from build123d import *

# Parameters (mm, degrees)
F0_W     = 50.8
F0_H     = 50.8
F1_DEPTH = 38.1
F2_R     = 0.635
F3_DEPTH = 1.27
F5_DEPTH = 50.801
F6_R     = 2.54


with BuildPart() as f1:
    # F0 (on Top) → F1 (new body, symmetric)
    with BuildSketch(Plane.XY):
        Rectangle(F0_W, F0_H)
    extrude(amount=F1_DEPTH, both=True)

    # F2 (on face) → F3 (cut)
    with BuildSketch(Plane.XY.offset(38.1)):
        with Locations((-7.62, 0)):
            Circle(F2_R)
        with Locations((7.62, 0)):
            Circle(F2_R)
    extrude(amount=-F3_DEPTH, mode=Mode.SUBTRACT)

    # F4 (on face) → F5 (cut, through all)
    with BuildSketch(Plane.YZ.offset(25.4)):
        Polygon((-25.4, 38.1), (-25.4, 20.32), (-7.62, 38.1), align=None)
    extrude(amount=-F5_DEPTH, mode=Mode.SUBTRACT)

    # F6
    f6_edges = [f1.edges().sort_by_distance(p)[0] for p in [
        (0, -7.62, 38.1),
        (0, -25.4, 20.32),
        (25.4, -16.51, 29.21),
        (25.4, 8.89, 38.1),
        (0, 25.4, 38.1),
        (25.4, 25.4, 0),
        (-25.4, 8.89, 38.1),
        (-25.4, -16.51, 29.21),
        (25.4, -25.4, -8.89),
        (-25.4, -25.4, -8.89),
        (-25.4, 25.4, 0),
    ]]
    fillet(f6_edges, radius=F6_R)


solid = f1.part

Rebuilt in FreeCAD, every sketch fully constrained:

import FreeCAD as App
import Part
import Sketcher
Q = App.Units.Quantity


def edges_at(feature, points):
    """Names of the edges that pass closest to the given points."""
    edges = feature.Shape.Edges
    near = lambda p: min(range(len(edges)), key=lambda i: edges[i].distToShape(Part.Vertex(*p))[0])
    return sorted({f"Edge{near(p) + 1}" for p in points})


def add_polygon(sketch, points):
    """Adds a closed chain of lines whose ends are joined by coincident constraints."""
    first, n = sketch.GeometryCount, len(points)
    for a, b in zip(points, points[1:] + points[:1]):
        sketch.addGeometry(Part.LineSegment(App.Vector(*a, 0), App.Vector(*b, 0)), False)
    for i in range(n):
        sketch.addConstraint(Sketcher.Constraint("Coincident", first + i, 2, first + (i + 1) % n, 1))

doc = App.newDocument("Part")
body = doc.addObject("PartDesign::Body", "Body")

sketch1 = body.newObject("Sketcher::SketchObject", "Sketch")
sketch1.AttachmentSupport = (doc.getObject("XY_Plane"), [""])
sketch1.MapMode = "FlatFace"
add_polygon(sketch1, [(-25, 25), (-25, -25), (25, -25), (25, 25)])
sketch1.addConstraint(Sketcher.Constraint("Vertical", 0))
sketch1.addConstraint(Sketcher.Constraint("Horizontal", 1))
sketch1.addConstraint(Sketcher.Constraint("Vertical", 2))
sketch1.addConstraint(Sketcher.Constraint("Horizontal", 3))
sketch1.addConstraint(Sketcher.Constraint("Symmetric", 0, 2, 2, 2, -1, 1))
sketch1.addConstraint(Sketcher.Constraint("Equal", 3, 0))
sketch1.addConstraint(Sketcher.Constraint("DistanceX", 1, 1, 1, 2, Q("2 in")))
pad1 = body.newObject("PartDesign::Pad", "Pad")
pad1.Profile = sketch1
pad1.Length = Q("3 in")
pad1.Midplane = True

sketch2 = body.newObject("Sketcher::SketchObject", "Sketch001")
sketch2.AttachmentSupport = (doc.getObject("XY_Plane"), [""])
sketch2.MapMode = "FlatFace"
sketch2.AttachmentOffset = App.Placement(App.Vector(0, 0, 1.5 * 25.4), App.Rotation())
sketch2.addGeometry(Part.Circle(App.Vector(-7.6, 0, 0), App.Vector(0, 0, 1), 0.6), False)
sketch2.addGeometry(Part.Circle(App.Vector(7.6, 0, 0), App.Vector(0, 0, 1), 0.6), False)
sketch2.addConstraint(Sketcher.Constraint("Equal", 0, 1))
sketch2.addConstraint(Sketcher.Constraint("Symmetric", 0, 3, 1, 3, -1, 1))
sketch2.addConstraint(Sketcher.Constraint("PointOnObject", 0, 3, -1))
sketch2.addConstraint(Sketcher.Constraint("Diameter", 0, Q("0.05 in")))
sketch2.addConstraint(Sketcher.Constraint("DistanceX", 0, 3, -1, 1, Q("0.3 in")))
pocket1 = body.newObject("PartDesign::Pocket", "Pocket")
pocket1.Profile = sketch2
pocket1.Length = Q("0.05 in")

sketch3 = body.newObject("Sketcher::SketchObject", "Sketch002")
sketch3.AttachmentSupport = (doc.getObject("YZ_Plane"), [""])
sketch3.MapMode = "FlatFace"
sketch3.AttachmentOffset = App.Placement(App.Vector(0, 0, 1 * 25.4), App.Rotation())
add_polygon(sketch3, [(-25, 38), (-25, 20), (-8, 38)])
sketch3.addConstraint(Sketcher.Constraint("Vertical", 0))
sketch3.addConstraint(Sketcher.Constraint("Horizontal", 2))
sketch3.addConstraint(Sketcher.Constraint("Equal", 2, 0))
sketch3.addConstraint(Sketcher.Constraint("DistanceX", 2, 2, 2, 1, Q("0.7 in")))
sketch3.addConstraint(Sketcher.Constraint("DistanceX", 0, 2, -1, 1, Q("1 in")))
sketch3.addConstraint(Sketcher.Constraint("DistanceY", -1, 1, 0, 2, Q("0.8 in")))
pocket2 = body.newObject("PartDesign::Pocket", "Pocket001")
pocket2.Profile = sketch3
pocket2.Type = "ThroughAll"
doc.recompute()

fillet = body.newObject("PartDesign::Fillet", "Fillet")
fillet.Base = (pocket2, edges_at(pocket2, [
    (0, -7.62, 38.1),
    (0, -25.4, 20.32),
    (25.4, -16.51, 29.21),
    (25.4, 8.89, 38.1),
    (0, 25.4, 38.1),
    (25.4, 25.4, 0),
    (-25.4, 8.89, 38.1),
    (-25.4, -16.51, 29.21),
    (25.4, -25.4, -8.89),
    (-25.4, -25.4, -8.89),
    (-25.4, 25.4, 0),
]))
fillet.Radius = Q("0.1 in")

doc.recompute()
